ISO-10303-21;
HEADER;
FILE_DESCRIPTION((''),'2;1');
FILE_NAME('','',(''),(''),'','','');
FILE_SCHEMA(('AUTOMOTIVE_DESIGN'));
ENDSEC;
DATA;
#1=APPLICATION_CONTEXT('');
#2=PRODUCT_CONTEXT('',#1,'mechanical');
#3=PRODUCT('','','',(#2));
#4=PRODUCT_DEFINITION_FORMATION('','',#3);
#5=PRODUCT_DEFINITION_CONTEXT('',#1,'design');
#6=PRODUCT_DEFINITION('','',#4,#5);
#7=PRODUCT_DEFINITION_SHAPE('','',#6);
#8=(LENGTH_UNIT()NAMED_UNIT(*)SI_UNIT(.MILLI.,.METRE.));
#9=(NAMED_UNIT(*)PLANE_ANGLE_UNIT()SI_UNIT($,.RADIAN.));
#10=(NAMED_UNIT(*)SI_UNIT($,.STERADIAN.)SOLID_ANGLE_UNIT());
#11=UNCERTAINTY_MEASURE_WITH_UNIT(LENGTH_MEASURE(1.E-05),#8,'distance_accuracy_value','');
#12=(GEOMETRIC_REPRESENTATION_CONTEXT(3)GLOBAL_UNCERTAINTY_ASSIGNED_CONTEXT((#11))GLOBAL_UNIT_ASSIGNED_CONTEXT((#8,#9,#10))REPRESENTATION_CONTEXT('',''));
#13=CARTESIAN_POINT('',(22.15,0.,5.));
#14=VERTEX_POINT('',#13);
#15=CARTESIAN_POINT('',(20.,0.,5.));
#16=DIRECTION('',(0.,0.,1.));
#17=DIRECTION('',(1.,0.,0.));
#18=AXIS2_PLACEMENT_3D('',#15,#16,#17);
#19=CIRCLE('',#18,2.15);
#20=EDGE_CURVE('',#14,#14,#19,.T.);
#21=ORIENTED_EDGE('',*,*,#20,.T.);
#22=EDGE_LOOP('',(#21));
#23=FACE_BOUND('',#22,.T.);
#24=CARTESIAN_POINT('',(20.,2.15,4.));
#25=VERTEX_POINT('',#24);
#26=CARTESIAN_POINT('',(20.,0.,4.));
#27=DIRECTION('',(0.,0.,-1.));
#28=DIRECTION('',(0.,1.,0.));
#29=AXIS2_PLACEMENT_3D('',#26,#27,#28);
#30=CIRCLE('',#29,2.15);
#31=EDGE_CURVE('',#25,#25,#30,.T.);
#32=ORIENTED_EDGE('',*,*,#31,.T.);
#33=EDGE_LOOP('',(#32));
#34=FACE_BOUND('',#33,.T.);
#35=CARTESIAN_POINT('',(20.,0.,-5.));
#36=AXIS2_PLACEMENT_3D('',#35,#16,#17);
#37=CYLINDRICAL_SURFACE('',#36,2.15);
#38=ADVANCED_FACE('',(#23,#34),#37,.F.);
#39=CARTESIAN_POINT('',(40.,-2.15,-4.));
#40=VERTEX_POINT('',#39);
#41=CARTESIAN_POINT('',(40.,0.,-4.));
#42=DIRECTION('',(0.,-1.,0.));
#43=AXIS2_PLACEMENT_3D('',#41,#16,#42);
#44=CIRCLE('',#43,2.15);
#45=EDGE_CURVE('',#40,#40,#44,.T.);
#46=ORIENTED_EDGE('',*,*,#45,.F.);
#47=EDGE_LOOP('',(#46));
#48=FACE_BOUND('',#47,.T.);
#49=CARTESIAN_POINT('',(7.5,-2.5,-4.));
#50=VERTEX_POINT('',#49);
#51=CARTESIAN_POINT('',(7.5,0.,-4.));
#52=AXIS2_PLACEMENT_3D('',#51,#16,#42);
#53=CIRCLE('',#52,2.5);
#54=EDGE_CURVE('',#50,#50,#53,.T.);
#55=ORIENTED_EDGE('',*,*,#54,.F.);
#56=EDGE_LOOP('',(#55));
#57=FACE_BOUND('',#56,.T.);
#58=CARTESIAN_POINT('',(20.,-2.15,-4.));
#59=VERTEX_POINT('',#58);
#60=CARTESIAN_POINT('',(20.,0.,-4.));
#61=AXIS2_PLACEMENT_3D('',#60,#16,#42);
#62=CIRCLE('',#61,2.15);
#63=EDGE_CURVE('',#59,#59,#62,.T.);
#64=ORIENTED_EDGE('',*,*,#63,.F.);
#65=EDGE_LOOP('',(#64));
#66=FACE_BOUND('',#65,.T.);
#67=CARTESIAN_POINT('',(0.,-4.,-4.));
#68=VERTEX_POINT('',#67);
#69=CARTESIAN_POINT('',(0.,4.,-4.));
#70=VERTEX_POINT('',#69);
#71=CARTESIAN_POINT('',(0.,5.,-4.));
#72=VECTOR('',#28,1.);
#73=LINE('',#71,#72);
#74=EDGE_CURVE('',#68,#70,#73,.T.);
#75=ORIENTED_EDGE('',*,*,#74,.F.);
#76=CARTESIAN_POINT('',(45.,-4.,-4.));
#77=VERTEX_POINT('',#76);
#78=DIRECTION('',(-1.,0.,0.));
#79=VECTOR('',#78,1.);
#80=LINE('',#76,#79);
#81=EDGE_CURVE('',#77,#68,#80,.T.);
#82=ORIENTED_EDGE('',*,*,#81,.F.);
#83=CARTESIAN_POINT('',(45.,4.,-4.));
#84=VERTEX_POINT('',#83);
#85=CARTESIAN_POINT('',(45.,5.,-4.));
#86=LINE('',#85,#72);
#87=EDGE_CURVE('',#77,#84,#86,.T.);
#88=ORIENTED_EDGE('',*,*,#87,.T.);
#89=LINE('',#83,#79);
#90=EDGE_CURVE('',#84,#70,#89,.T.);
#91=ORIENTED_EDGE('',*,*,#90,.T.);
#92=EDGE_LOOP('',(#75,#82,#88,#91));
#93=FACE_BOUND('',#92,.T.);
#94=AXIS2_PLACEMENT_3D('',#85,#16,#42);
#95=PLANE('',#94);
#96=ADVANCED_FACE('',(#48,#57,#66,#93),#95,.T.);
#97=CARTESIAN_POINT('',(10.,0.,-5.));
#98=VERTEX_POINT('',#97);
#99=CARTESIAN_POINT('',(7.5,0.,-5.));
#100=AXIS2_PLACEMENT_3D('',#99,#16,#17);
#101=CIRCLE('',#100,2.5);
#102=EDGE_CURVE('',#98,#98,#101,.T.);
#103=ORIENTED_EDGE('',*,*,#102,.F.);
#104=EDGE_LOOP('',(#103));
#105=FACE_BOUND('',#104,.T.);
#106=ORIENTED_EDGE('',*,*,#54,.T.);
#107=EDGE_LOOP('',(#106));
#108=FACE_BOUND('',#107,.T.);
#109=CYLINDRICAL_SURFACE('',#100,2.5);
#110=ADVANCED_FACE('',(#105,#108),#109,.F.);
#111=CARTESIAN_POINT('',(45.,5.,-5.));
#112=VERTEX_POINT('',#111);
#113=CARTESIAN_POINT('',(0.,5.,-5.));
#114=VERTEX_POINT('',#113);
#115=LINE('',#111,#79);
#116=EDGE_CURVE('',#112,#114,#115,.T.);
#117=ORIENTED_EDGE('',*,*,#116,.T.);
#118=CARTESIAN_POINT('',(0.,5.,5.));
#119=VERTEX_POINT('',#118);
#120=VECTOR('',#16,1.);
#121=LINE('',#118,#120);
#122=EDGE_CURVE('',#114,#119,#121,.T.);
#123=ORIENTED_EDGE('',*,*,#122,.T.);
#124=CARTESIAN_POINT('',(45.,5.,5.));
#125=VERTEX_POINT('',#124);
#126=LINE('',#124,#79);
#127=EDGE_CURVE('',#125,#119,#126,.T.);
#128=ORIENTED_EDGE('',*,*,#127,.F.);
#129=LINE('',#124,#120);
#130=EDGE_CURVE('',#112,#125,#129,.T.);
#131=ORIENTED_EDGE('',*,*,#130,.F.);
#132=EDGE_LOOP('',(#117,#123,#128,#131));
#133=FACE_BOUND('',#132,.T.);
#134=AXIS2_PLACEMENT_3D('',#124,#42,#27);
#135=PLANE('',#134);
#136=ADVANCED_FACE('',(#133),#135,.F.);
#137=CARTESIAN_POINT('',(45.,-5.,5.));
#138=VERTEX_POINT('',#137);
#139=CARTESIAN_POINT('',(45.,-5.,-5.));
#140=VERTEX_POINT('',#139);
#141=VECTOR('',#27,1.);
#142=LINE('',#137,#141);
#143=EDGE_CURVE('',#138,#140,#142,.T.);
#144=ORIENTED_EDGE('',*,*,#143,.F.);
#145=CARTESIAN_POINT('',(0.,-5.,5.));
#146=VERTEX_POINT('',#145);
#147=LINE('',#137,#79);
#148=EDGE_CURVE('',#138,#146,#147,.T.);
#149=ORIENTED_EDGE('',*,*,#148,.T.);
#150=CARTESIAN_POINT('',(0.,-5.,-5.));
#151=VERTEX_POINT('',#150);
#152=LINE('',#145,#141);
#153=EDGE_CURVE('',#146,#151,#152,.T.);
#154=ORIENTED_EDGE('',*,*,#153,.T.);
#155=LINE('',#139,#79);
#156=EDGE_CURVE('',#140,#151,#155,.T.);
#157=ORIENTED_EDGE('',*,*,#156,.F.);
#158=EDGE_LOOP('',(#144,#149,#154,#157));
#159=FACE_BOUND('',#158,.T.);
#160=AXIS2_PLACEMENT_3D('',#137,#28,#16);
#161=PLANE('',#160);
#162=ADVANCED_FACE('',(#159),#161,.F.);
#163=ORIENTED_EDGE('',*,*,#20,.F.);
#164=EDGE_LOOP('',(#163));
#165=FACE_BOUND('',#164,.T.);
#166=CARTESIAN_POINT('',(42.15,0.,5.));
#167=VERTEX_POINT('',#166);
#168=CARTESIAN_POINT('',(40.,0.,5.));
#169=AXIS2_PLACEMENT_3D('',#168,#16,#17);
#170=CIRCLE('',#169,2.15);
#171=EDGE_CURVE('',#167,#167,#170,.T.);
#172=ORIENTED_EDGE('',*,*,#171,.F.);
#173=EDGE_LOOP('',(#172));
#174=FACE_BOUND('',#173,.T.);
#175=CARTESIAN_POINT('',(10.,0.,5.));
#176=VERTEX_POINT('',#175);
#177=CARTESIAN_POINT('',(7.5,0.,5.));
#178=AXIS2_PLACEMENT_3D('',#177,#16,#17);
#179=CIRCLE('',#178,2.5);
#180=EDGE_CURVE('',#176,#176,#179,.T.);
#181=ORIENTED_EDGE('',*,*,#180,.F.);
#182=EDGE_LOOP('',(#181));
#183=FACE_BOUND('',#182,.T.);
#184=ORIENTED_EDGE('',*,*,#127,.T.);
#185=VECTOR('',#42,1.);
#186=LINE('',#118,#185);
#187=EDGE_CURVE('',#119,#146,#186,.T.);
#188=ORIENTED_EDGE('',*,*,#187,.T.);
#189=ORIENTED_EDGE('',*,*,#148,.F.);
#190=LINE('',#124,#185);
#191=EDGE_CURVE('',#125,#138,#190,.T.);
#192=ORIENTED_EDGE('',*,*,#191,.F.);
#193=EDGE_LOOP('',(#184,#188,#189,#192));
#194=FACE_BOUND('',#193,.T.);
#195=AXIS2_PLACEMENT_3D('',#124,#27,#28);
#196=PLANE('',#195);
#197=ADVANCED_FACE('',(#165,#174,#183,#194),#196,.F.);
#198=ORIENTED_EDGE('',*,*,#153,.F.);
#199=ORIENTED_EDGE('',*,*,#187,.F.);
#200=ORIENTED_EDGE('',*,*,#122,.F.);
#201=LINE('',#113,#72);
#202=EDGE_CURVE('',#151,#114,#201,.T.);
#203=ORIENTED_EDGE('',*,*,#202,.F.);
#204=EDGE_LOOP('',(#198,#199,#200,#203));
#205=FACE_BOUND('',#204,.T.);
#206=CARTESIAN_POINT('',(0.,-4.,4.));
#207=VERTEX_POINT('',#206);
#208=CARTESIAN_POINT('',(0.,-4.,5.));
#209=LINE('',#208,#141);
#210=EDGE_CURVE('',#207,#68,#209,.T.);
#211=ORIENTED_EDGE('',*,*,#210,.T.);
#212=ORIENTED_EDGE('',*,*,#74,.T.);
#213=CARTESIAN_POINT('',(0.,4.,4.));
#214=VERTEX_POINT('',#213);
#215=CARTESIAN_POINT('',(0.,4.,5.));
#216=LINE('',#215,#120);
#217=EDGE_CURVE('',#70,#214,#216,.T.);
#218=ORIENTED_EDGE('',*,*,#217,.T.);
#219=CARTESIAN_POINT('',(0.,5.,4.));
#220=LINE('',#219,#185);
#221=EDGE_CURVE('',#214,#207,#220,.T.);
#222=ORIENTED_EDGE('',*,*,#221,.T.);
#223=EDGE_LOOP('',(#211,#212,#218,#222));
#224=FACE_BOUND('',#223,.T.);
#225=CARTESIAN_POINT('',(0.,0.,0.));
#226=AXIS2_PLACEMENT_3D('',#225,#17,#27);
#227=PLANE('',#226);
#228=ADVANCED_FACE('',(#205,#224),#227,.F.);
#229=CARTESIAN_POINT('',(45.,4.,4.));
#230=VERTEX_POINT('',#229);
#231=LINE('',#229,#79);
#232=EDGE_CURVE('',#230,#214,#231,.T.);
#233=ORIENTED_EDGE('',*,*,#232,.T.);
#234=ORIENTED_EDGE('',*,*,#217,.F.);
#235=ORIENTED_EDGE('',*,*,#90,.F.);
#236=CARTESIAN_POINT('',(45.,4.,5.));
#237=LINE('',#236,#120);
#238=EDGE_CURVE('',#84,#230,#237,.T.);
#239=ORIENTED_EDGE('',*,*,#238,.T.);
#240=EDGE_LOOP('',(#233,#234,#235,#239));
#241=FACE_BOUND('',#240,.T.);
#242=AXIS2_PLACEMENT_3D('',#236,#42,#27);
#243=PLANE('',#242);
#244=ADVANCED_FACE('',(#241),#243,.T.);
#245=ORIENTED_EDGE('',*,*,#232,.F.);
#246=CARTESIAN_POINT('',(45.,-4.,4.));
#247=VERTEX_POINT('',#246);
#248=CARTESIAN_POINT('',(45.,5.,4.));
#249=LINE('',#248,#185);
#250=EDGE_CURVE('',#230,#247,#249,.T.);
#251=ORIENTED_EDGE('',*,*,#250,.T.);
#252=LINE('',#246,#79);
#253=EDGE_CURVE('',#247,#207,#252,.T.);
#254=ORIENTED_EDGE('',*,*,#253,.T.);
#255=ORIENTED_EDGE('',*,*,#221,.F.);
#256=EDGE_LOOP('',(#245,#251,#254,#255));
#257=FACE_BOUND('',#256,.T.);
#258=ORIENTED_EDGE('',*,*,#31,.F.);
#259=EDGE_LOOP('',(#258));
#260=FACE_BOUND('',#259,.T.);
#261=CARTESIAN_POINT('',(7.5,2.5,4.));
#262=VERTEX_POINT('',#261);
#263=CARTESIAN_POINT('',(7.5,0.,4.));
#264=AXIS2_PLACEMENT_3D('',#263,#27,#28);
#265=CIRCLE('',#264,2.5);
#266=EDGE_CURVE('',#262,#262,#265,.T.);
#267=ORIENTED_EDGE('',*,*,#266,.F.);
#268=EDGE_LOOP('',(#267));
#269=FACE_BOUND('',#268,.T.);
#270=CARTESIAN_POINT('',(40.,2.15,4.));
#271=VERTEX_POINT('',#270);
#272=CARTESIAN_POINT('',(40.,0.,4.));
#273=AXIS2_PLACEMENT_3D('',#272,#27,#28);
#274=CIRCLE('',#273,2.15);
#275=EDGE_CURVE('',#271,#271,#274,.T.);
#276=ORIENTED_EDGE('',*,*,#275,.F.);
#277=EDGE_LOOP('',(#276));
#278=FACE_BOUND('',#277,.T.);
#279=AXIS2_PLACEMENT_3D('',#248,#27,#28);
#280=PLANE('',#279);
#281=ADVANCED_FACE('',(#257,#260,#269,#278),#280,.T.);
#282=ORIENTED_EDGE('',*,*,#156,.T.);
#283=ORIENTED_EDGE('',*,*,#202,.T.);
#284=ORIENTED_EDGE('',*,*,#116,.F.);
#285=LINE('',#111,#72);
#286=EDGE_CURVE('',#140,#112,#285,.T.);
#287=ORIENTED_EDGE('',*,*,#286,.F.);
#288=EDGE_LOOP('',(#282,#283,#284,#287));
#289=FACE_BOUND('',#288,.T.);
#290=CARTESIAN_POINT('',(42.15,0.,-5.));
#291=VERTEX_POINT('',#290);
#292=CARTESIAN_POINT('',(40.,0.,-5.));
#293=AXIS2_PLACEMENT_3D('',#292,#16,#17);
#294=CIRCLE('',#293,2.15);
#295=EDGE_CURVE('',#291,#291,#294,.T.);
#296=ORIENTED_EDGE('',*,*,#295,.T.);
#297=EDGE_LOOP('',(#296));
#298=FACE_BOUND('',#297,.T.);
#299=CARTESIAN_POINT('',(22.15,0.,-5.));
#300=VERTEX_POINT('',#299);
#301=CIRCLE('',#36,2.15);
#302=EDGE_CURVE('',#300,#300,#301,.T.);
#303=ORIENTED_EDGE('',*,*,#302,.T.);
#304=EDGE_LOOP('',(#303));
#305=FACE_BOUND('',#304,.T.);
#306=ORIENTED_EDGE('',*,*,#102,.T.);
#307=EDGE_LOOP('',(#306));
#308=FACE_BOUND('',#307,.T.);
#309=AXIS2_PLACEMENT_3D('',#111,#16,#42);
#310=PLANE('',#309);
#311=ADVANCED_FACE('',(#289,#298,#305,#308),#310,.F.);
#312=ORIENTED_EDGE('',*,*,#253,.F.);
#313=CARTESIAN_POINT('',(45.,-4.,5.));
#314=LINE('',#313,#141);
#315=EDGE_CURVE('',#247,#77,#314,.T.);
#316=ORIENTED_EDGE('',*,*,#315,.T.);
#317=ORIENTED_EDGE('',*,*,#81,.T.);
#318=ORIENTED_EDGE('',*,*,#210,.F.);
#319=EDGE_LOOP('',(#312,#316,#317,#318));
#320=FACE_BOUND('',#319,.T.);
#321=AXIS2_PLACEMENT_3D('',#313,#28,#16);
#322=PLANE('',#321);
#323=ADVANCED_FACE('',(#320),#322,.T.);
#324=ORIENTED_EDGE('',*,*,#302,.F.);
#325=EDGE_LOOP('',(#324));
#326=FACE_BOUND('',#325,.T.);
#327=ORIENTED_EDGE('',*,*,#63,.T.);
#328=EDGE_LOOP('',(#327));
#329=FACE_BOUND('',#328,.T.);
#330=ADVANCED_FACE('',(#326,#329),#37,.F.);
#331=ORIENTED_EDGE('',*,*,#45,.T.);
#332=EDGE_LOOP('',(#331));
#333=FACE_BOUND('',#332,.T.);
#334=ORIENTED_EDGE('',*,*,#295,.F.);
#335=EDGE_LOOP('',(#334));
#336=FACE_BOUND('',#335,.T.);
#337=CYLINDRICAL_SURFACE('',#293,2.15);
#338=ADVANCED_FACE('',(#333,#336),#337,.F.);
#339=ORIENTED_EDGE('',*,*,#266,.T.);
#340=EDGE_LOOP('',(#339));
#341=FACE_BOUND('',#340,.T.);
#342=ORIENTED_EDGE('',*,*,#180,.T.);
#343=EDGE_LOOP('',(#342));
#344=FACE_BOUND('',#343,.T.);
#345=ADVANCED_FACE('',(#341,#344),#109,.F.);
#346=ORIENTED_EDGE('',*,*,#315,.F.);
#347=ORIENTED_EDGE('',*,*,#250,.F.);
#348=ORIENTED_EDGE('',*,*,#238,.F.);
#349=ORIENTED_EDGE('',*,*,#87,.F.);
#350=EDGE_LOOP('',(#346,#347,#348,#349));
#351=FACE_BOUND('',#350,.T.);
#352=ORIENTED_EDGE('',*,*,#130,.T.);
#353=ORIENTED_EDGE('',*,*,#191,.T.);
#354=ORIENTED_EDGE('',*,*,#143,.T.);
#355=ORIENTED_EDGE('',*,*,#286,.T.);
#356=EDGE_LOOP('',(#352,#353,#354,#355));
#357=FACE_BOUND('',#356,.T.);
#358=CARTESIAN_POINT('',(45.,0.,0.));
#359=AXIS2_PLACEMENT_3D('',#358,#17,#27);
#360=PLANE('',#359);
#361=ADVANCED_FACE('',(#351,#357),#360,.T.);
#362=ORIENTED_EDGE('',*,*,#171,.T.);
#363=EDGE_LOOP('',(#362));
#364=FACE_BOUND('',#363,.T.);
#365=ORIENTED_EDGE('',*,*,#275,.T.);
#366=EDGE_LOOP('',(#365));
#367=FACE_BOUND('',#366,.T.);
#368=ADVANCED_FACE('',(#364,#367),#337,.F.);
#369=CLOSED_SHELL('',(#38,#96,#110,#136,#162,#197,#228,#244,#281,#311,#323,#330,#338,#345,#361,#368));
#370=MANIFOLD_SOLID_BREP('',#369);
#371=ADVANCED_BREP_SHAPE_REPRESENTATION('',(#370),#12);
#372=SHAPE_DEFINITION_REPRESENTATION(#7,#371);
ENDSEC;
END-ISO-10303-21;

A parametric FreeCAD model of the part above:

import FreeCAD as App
import Part
import Sketcher
Q = App.Units.Quantity


def add_polygon(sketch, points):
    """Adds a closed chain of lines whose ends are joined by coincident constraints."""
    first, n = sketch.GeometryCount, len(points)
    for a, b in zip(points, points[1:] + points[:1]):
        sketch.addGeometry(Part.LineSegment(App.Vector(*a, 0), App.Vector(*b, 0)), False)
    for i in range(n):
        sketch.addConstraint(Sketcher.Constraint("Coincident", first + i, 2, first + (i + 1) % n, 1))

doc = App.newDocument("Part")
params = doc.addObject("Spreadsheet::Sheet", "Params")
for row, (alias, value) in enumerate([
    ("sketch1_width", "10 mm"),
    ("sketch1_width2", "8 mm"),
    ("pad1_length", "45 mm"),
    ("sketch2_diameter", "5 mm"),
    ("sketch2_diameter2", "4.3 mm"),
], start=1):
    params.set(f"A{row}", alias)
    params.set(f"B{row}", "=" + value)
    params.setAlias(f"B{row}", alias)

body = doc.addObject("PartDesign::Body", "Body")

# Sketch on YZ plane
sketch1 = doc.addObject("Sketcher::SketchObject", "Sketch")
body.addObject(sketch1)
sketch1.AttachmentSupport = (doc.YZ_Plane, [""])
sketch1.MapMode = "FlatFace"
add_polygon(sketch1, [(5, 5), (-5, 5), (-5, -5), (5, -5)])  # lines 0-3
add_polygon(sketch1, [(-4, -4), (-4, 4), (4, 4), (4, -4)])  # lines 4-7
sketch1.addConstraint([
    Sketcher.Constraint("Horizontal", 0),
    Sketcher.Constraint("Vertical", 1),
    Sketcher.Constraint("Horizontal", 2),
    Sketcher.Constraint("Vertical", 3),
    Sketcher.Constraint("Vertical", 4),
    Sketcher.Constraint("Horizontal", 5),
    Sketcher.Constraint("Vertical", 6),
    Sketcher.Constraint("Horizontal", 7),
    Sketcher.Constraint("Symmetric", 0, 2, 2, 2, -1, 1),
    Sketcher.Constraint("Symmetric", 4, 2, 6, 2, -1, 1),
    Sketcher.Constraint("Equal", 2, 1),
    Sketcher.Constraint("Equal", 7, 4),
    Sketcher.Constraint("DistanceX", 0, 2, 0, 1, Q("10 mm")),
    Sketcher.Constraint("DistanceX", 5, 1, 5, 2, Q("8 mm")),
])
sketch1.setExpression("Constraints[20]", "Params.sketch1_width")
sketch1.setExpression("Constraints[21]", "Params.sketch1_width2")
pad1 = doc.addObject("PartDesign::Pad", "Pad")
body.addObject(pad1)
pad1.Profile = sketch1
pad1.setExpression("Length", "Params.pad1_length")

# Sketch on XY plane
sketch2 = doc.addObject("Sketcher::SketchObject", "Sketch001")
body.addObject(sketch2)
sketch2.AttachmentSupport = (doc.XY_Plane, [""])
sketch2.MapMode = "FlatFace"
sketch2.AttachmentOffset = App.Placement(App.Vector(0, 0, 5), App.Rotation())
sketch2.addGeometry([
    Part.Circle(App.Vector(40, 0, 0), App.Vector(0, 0, 1), 2.1),
    Part.Circle(App.Vector(20, 0, 0), App.Vector(0, 0, 1), 2.1),
    Part.Circle(App.Vector(7.5, 0, 0), App.Vector(0, 0, 1), 2.5),
], False)
sketch2.addConstraint([
    Sketcher.Constraint("Equal", 0, 1),
    Sketcher.Constraint("PointOnObject", 0, 3, -1),
    Sketcher.Constraint("PointOnObject", 1, 3, -1),
    Sketcher.Constraint("PointOnObject", 2, 3, -1),
    Sketcher.Constraint("Diameter", 2, Q("5 mm")),
    Sketcher.Constraint("Diameter", 0, Q("4.3 mm")),
    Sketcher.Constraint("DistanceX", -1, 1, 0, 3, Q("40 mm")),
    Sketcher.Constraint("DistanceX", -1, 1, 1, 3, Q("20 mm")),
    Sketcher.Constraint("DistanceX", -1, 1, 2, 3, Q("7.5 mm")),
])
sketch2.setExpression("Constraints[4]", "Params.sketch2_diameter")
sketch2.setExpression("Constraints[5]", "Params.sketch2_diameter2")
pocket1 = doc.addObject("PartDesign::Pocket", "Pocket")
body.addObject(pocket1)
pocket1.Profile = sketch2
pocket1.Type = "ThroughAll"

doc.recompute()
